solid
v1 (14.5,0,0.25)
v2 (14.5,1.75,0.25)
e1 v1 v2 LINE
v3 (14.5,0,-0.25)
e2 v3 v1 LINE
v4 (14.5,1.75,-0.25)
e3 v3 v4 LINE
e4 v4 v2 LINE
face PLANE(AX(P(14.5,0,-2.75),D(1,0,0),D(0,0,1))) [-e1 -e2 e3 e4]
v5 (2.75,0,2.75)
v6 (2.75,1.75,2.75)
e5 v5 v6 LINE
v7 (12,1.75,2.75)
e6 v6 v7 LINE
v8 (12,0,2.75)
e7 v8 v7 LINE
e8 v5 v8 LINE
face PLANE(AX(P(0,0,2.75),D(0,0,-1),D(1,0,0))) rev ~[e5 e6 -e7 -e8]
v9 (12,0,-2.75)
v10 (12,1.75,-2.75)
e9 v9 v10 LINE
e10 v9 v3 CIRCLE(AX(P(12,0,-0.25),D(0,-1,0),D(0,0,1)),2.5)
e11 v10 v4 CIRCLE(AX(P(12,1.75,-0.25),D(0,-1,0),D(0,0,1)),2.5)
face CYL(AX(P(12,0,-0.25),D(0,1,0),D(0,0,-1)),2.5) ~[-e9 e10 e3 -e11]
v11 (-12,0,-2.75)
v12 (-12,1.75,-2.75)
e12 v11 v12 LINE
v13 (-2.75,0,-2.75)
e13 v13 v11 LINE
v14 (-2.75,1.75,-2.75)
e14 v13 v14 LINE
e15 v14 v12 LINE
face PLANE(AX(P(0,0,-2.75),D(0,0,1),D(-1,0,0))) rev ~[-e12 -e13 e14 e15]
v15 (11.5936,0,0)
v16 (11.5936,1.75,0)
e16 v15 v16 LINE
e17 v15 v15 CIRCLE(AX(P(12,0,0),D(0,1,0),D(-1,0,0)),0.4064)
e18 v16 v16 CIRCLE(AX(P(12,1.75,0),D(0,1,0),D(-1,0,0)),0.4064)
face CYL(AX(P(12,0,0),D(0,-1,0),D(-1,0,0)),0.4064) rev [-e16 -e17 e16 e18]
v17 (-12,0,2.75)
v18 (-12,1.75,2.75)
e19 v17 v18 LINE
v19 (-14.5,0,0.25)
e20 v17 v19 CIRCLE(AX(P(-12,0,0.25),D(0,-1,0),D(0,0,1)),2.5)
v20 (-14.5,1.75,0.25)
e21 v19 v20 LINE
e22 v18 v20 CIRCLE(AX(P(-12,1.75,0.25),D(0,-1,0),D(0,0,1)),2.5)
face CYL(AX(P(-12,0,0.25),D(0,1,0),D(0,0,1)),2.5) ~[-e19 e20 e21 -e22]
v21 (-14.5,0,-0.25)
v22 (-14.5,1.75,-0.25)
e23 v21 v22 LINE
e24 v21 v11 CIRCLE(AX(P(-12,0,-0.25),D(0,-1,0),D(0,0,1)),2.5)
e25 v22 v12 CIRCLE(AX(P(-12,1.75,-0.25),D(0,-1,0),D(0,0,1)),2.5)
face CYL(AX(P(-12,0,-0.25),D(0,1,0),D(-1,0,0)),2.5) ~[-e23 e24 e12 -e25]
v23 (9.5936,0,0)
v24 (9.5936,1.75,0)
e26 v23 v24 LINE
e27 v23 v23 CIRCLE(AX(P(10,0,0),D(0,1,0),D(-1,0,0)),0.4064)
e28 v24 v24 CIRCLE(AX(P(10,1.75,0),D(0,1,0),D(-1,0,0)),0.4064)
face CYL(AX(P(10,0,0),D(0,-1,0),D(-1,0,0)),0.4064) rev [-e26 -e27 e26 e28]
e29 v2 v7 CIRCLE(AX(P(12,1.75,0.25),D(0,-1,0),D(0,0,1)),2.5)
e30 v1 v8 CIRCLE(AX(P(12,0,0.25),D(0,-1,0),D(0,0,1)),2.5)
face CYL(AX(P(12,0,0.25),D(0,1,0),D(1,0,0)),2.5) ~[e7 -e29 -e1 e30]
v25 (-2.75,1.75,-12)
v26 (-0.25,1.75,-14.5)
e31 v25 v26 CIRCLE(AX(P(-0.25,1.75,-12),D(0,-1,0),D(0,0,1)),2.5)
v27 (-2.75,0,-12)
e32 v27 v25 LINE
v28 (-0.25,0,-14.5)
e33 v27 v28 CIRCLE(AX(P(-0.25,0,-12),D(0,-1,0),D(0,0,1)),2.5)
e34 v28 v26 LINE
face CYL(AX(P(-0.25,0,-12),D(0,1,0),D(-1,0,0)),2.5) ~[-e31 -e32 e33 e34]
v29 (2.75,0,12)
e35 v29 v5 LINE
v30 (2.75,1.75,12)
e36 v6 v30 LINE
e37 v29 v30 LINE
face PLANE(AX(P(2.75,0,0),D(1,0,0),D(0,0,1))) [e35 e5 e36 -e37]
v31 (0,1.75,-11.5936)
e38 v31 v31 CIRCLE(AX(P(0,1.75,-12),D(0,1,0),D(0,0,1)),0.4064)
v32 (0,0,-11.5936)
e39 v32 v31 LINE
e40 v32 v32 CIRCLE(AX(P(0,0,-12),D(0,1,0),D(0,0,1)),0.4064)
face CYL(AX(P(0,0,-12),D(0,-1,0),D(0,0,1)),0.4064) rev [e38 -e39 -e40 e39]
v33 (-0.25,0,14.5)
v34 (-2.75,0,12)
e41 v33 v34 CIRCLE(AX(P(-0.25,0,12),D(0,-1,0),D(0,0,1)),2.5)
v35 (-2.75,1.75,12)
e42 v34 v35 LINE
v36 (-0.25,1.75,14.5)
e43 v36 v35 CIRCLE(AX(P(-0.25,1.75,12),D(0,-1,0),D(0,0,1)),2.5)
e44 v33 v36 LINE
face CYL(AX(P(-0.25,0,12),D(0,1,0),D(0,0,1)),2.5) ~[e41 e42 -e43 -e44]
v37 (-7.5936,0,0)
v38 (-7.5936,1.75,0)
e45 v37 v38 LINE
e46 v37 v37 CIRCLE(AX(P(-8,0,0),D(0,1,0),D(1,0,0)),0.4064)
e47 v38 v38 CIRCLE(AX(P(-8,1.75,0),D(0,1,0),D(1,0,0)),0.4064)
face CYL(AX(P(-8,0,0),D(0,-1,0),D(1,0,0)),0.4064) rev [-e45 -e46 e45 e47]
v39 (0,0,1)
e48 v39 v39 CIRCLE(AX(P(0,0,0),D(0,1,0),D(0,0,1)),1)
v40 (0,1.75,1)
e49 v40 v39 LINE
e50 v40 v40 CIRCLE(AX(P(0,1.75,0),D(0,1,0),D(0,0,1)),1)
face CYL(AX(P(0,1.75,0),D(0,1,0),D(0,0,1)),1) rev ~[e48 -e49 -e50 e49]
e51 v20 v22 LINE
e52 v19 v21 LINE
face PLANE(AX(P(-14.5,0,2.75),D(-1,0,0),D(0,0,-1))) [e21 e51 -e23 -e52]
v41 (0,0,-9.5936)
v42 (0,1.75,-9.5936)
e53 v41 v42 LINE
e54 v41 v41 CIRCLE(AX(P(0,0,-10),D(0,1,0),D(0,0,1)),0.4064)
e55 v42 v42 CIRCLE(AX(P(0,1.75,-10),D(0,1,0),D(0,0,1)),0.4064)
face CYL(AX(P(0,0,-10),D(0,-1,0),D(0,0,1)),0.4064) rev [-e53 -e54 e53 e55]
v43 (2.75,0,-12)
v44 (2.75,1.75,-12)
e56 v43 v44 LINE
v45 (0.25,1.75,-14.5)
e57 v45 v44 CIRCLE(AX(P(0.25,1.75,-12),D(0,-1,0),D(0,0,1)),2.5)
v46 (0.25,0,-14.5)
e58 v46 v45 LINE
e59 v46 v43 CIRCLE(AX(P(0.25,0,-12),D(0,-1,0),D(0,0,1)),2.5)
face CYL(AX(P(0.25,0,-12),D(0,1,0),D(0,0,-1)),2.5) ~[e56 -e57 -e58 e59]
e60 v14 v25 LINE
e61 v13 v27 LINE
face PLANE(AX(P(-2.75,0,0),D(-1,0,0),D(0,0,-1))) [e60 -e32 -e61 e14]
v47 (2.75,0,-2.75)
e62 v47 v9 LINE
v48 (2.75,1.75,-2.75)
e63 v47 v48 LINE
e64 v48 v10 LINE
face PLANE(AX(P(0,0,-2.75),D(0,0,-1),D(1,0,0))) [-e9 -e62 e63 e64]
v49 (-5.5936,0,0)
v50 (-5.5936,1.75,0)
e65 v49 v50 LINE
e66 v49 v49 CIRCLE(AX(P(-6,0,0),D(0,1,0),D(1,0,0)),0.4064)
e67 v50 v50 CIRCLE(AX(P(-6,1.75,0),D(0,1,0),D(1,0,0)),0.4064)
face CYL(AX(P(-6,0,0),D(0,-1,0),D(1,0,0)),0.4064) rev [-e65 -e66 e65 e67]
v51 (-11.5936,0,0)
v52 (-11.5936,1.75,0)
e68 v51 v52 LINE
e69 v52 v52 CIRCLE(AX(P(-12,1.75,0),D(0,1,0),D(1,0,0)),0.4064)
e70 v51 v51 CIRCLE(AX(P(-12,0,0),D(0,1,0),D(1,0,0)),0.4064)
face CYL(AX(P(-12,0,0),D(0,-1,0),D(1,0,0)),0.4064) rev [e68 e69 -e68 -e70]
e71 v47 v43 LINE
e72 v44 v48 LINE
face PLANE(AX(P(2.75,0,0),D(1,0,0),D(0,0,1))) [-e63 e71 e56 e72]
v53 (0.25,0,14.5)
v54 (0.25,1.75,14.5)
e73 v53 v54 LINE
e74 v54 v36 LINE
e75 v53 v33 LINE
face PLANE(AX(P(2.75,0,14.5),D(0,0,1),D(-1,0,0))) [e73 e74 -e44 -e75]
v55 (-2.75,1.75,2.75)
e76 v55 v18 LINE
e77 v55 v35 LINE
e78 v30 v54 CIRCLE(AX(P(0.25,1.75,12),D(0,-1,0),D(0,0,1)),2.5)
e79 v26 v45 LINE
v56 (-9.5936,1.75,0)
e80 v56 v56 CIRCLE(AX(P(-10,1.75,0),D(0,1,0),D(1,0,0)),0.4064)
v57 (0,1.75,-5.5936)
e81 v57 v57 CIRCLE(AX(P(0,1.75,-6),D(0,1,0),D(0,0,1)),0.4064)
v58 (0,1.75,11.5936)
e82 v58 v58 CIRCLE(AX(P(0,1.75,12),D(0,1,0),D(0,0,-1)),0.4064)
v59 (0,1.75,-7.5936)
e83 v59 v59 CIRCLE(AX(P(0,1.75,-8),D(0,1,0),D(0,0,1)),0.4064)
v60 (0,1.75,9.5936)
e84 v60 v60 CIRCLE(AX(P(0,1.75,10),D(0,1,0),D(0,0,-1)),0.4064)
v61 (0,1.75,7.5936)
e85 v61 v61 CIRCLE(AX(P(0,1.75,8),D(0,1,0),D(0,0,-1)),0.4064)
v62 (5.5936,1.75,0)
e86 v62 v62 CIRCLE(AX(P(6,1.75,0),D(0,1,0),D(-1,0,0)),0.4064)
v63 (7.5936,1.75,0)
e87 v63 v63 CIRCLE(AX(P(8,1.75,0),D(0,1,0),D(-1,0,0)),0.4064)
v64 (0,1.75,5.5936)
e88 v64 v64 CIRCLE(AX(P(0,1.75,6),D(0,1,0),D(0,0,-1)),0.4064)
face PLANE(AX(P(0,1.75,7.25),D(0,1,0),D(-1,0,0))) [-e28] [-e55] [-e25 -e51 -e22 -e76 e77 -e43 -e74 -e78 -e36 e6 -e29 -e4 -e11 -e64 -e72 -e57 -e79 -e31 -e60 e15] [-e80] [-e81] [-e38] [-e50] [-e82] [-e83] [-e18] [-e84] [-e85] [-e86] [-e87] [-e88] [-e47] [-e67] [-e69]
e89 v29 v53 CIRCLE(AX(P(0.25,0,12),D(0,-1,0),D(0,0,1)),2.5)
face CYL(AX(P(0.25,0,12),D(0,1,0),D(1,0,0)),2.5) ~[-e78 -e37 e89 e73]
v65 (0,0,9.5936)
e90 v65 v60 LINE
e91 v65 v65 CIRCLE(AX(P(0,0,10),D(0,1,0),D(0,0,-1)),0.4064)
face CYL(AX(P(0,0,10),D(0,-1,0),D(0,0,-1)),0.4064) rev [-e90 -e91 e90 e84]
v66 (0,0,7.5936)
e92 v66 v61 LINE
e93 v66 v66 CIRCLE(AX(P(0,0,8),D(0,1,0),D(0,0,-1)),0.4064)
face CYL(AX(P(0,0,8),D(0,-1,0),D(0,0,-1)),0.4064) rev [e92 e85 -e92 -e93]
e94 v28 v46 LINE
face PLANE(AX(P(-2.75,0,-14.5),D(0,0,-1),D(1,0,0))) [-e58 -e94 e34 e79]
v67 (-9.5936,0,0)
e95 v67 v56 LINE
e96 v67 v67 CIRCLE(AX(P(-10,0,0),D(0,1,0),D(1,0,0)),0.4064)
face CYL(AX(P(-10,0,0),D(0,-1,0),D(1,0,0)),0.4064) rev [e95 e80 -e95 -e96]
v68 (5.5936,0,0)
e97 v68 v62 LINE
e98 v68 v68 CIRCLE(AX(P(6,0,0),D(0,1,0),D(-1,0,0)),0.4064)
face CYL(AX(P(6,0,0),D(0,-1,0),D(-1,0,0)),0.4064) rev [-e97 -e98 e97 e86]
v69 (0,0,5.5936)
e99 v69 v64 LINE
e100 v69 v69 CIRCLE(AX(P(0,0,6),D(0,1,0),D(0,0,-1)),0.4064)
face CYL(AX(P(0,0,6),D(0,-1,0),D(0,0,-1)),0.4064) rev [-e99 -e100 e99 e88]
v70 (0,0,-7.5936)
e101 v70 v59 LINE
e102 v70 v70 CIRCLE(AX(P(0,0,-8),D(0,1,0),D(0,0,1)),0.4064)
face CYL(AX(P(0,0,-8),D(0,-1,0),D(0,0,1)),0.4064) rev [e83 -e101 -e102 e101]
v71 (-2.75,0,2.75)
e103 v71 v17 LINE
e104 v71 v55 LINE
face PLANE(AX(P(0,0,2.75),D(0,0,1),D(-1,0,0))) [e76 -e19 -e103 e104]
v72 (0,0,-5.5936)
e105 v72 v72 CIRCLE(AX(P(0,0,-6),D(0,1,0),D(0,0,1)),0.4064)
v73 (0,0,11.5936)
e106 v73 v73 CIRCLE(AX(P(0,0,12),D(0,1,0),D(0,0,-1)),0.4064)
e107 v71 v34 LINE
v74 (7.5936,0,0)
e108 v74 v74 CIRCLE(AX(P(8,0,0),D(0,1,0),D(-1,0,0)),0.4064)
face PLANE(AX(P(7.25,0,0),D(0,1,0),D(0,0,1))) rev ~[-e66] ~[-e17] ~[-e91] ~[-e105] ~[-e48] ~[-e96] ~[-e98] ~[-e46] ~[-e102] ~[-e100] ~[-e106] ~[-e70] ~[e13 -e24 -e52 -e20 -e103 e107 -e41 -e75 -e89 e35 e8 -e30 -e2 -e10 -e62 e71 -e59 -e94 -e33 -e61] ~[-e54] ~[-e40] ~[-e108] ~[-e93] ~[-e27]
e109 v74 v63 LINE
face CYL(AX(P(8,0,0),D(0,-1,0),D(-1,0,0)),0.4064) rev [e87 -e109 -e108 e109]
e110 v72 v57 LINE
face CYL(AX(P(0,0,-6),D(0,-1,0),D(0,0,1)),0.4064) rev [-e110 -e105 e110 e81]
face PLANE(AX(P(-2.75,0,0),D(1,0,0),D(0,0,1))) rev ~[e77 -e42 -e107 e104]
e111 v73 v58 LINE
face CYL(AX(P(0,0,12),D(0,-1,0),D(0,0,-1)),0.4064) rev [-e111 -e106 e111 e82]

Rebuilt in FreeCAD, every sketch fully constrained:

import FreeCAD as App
import Part
import Sketcher
from FreeCAD import Vector


def edges_at(feature, points):
    """Names of the edges that pass closest to the given points."""
    edges = feature.Shape.Edges
    near = lambda p: min(range(len(edges)), key=lambda i: edges[i].distToShape(Part.Vertex(*p))[0])
    return sorted({f"Edge{near(p) + 1}" for p in points})

doc = App.newDocument("Part")
body = doc.addObject("PartDesign::Body", "Body")

sketch1 = body.newObject("Sketcher::SketchObject", "Sketch")
sketch1.AttachmentSupport = (doc.getObject("XZ_Plane"), [""])
sketch1.MapMode = "FlatFace"
sketch1.addGeometry([
    Part.LineSegment(Vector(-2.75, -14.5, 0), Vector(-2.75, 0, 0)),
    Part.LineSegment(Vector(-2.75, 0, 0), Vector(2.75, 0, 0)),
    Part.LineSegment(Vector(2.75, 0, 0), Vector(2.75, -14.5, 0)),
    Part.LineSegment(Vector(2.75, -14.5, 0), Vector(-2.75, -14.5, 0)),
    Part.Circle(Vector(0, -6, 0), Vector(0, 0, 1), 0.4064),
    Part.Circle(Vector(0, -8, 0), Vector(0, 0, 1), 0.4064),
    Part.Circle(Vector(0, -10, 0), Vector(0, 0, 1), 0.4064),
    Part.Circle(Vector(0, -12, 0), Vector(0, 0, 1), 0.4064),
], False)
sketch1.addConstraint([
    Sketcher.Constraint("Coincident", 0, 2, 1, 1),
    Sketcher.Constraint("Coincident", 1, 2, 2, 1),
    Sketcher.Constraint("Coincident", 2, 2, 3, 1),
    Sketcher.Constraint("Coincident", 3, 2, 0, 1),
    Sketcher.Constraint("Vertical", 0),
    Sketcher.Constraint("Horizontal", 1),
    Sketcher.Constraint("Vertical", 2),
    Sketcher.Constraint("Horizontal", 3),
    Sketcher.Constraint("Equal", 4, 5),
    Sketcher.Constraint("Equal", 5, 6),
    Sketcher.Constraint("Equal", 6, 7),
    Sketcher.Constraint("Symmetric", 0, 2, 1, 2, -1, 1),
    Sketcher.Constraint("PointOnObject", 4, 3, -2),
    Sketcher.Constraint("PointOnObject", 5, 3, -2),
    Sketcher.Constraint("PointOnObject", 6, 3, -2),
    Sketcher.Constraint("PointOnObject", 7, 3, -2),
    Sketcher.Constraint("DistanceX", 1, 1, 1, 2, 5.5),
    Sketcher.Constraint("DistanceY", 0, 1, 0, 2, 14.5),
    Sketcher.Constraint("DistanceY", 4, 3, -1, 1, 6.0),
    Sketcher.Constraint("DistanceY", 5, 3, -1, 1, 8.0),
    Sketcher.Constraint("DistanceY", 6, 3, -1, 1, 10.0),
    Sketcher.Constraint("DistanceY", 7, 3, -1, 1, 12.0),
    Sketcher.Constraint("Diameter", 4, 0.8128),
])
pad1 = body.newObject("PartDesign::Pad", "Pad")
pad1.Profile = sketch1
pad1.Length = 1.75
pad1.Reversed = True
doc.recompute()

fillet = body.newObject("PartDesign::Fillet", "Fillet")
fillet.Base = (pad1, edges_at(pad1, [(-2.75, 0.875, -14.5), (2.75, 0.875, -14.5)]))
fillet.Radius = 2.5
doc.recompute()

polarpattern = body.newObject("PartDesign::PolarPattern", "PolarPattern")
polarpattern.Originals = [pad1]
polarpattern.Axis = (doc.getObject("Y_Axis"), [""])
polarpattern.Angle = 360
polarpattern.Occurrences = 4
body.Tip = polarpattern
doc.recompute()

fillet2 = body.newObject("PartDesign::Fillet", "Fillet001")
fillet2.Base = (polarpattern, edges_at(polarpattern, [
    (-14.5, 0.875, 2.75),
    (-14.5, 0.875, -2.75),
    (2.75, 0.875, 14.5),
    (-2.75, 0.875, 14.5),
    (14.5, 0.875, -2.75),
    (14.5, 0.875, 2.75),
]))
fillet2.Radius = 2.5

sketch2 = body.newObject("Sketcher::SketchObject", "Sketch001")
sketch2.AttachmentSupport = (doc.getObject("XZ_Plane"), [""])
sketch2.MapMode = "FlatFace"
sketch2.AttachmentOffset = App.Placement(Vector(0, 0, -1.75), App.Rotation())
sketch2.addGeometry(Part.Circle(Vector(0, 0, 0), Vector(0, 0, 1), 1), False)
sketch2.addConstraint([
    Sketcher.Constraint("Coincident", 0, 3, -1, 1),
    Sketcher.Constraint("Diameter", 0, 2.0),
])
pocket1 = body.newObject("PartDesign::Pocket", "Pocket")
pocket1.Profile = sketch2
pocket1.Type = "UpToFirst"
pocket1.Reversed = True

doc.recompute()
